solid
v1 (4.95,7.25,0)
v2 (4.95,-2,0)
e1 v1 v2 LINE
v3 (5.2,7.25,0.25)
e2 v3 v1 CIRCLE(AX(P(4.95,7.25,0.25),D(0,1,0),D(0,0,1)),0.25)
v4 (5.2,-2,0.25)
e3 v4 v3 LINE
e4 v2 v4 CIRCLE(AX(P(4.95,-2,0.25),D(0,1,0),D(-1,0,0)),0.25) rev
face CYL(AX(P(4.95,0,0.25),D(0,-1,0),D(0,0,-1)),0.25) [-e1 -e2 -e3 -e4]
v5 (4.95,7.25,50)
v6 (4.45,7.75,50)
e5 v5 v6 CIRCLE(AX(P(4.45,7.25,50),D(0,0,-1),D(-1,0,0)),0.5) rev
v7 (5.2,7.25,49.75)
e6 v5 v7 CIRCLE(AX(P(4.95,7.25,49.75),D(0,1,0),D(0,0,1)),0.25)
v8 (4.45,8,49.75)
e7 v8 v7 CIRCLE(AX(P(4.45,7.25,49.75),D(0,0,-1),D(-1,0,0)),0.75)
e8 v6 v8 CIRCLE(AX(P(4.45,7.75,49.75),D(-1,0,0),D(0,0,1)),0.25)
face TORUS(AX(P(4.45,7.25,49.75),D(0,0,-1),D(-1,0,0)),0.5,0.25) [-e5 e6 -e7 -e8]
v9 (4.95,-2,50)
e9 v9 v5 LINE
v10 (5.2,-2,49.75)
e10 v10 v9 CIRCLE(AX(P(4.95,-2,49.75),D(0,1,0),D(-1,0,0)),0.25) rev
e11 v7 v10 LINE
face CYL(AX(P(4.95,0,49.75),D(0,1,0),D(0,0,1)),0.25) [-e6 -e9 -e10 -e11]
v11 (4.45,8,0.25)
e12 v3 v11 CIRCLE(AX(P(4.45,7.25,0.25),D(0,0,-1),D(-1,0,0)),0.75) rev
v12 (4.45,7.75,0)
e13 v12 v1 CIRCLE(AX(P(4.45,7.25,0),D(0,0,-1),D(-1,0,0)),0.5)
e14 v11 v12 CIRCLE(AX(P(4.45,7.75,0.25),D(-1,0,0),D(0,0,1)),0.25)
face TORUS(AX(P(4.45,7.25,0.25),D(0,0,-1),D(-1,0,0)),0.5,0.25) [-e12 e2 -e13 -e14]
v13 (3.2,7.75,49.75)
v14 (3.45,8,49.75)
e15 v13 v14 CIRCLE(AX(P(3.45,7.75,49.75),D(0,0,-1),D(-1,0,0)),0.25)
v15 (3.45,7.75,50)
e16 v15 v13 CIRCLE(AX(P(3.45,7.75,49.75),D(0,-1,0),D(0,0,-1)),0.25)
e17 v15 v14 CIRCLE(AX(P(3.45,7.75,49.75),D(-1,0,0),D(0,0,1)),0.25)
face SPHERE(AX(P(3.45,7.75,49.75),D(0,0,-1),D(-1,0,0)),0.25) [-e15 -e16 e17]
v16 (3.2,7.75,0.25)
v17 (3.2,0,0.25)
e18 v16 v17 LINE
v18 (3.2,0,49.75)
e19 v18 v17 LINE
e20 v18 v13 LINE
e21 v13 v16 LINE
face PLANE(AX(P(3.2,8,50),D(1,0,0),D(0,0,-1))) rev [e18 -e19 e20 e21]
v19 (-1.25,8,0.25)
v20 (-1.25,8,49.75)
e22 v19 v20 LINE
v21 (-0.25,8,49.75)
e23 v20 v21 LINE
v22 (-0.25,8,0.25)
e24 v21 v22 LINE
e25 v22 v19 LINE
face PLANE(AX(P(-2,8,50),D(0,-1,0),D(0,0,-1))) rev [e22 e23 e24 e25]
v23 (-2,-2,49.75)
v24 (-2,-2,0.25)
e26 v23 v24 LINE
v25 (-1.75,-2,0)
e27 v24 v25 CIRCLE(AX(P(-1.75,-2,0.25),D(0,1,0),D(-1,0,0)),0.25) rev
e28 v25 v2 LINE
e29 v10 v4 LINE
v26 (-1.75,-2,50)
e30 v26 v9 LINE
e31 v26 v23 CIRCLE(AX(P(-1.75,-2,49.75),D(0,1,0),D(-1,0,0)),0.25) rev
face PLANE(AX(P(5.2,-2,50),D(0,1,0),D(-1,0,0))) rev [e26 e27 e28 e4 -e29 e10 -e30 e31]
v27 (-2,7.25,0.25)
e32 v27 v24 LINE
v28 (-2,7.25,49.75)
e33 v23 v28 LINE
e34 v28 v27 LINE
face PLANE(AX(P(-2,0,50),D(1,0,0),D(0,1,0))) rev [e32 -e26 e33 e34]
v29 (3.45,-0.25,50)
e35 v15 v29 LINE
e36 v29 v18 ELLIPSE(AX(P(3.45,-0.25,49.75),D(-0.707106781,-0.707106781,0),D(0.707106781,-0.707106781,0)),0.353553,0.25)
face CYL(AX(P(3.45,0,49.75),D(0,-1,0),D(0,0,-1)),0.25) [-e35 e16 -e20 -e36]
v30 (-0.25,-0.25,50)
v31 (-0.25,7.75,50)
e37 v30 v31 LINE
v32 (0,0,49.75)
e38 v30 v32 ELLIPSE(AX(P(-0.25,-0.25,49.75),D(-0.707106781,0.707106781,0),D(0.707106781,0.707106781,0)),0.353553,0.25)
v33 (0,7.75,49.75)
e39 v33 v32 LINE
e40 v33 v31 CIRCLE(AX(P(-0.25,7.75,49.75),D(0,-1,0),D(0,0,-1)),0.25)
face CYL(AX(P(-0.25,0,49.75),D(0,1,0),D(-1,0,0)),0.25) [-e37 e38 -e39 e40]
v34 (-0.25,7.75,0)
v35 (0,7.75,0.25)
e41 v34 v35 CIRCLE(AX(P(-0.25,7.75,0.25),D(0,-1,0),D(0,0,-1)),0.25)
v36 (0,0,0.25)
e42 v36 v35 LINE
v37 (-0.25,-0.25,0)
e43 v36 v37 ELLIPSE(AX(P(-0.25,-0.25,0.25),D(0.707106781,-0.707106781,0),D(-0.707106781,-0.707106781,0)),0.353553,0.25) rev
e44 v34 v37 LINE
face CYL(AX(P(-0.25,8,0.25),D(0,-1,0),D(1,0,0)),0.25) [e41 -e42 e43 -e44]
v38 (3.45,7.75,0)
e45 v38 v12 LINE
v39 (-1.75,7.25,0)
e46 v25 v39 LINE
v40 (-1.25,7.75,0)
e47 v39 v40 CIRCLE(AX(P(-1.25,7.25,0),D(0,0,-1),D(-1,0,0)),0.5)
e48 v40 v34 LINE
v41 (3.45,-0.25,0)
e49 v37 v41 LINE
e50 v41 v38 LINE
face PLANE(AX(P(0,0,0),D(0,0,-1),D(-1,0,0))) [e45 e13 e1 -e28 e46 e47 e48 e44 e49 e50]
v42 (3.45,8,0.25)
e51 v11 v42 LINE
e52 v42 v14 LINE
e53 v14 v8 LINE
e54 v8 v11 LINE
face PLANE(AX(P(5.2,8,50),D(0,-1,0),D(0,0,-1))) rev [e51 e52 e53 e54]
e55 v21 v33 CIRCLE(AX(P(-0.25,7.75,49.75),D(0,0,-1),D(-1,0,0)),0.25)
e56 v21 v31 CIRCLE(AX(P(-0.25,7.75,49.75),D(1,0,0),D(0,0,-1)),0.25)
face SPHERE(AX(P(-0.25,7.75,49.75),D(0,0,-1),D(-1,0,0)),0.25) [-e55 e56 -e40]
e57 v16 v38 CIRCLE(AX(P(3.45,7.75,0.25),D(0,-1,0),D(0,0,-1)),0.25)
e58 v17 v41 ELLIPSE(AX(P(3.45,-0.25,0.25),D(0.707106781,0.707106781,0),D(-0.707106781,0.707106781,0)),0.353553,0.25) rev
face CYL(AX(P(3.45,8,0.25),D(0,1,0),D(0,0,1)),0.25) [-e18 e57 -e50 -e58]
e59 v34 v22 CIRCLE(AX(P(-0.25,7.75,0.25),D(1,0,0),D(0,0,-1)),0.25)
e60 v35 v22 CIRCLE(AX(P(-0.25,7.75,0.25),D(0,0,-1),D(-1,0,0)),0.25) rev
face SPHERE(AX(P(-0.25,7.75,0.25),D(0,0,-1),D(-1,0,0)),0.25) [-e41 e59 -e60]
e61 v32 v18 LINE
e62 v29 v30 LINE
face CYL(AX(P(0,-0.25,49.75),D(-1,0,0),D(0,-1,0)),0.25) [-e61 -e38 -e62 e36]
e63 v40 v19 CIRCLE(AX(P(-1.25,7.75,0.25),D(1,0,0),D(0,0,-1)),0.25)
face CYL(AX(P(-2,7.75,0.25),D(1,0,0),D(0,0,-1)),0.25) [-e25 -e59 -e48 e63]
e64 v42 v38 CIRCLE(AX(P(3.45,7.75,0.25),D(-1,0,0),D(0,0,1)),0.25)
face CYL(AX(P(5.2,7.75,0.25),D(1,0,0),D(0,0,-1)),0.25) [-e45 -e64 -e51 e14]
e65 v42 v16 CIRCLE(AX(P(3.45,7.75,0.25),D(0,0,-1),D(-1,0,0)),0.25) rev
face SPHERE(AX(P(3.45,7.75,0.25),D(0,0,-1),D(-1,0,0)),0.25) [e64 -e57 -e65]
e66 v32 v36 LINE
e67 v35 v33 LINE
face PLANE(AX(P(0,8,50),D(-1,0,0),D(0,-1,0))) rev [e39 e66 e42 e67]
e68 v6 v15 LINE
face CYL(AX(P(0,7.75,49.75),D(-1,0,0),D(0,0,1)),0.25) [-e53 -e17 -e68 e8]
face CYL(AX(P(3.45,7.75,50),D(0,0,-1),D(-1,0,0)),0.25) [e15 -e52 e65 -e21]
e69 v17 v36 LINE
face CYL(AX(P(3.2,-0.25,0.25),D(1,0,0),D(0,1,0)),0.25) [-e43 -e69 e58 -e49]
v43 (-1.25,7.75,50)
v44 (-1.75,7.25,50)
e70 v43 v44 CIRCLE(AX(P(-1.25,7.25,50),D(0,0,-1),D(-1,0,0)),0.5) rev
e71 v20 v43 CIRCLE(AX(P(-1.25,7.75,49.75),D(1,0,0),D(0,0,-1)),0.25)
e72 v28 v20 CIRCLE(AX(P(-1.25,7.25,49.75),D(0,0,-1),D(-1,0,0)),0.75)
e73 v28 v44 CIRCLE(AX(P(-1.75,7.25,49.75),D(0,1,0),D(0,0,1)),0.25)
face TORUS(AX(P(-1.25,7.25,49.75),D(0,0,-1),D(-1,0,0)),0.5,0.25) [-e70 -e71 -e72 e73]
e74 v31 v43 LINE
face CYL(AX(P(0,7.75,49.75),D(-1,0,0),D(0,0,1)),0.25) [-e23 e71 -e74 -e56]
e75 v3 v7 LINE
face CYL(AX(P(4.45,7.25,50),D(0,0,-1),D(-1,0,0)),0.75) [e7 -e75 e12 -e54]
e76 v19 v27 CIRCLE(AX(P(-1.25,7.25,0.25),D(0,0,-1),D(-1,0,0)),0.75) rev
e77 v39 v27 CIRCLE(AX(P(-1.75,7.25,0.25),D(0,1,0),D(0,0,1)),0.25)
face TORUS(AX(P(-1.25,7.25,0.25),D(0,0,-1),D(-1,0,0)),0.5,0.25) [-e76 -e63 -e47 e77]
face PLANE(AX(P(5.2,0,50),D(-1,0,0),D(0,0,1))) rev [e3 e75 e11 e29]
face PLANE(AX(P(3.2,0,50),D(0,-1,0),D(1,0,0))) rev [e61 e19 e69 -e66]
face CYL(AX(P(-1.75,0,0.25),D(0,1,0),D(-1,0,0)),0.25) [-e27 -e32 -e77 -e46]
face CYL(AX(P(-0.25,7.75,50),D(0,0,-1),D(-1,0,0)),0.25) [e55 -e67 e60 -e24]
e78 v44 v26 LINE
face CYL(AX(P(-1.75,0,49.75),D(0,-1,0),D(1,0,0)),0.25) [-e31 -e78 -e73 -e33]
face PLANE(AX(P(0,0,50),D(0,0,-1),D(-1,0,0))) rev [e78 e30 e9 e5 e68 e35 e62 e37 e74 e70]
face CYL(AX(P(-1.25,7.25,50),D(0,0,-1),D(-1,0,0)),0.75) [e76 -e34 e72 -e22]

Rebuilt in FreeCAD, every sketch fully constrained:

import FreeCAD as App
import Part
import Sketcher

V = App.Vector
Q = App.Units.Quantity


def edges_at(feature, points):
    """Names of the edges that pass closest to the given points."""
    edges = feature.Shape.Edges
    near = lambda p: min(range(len(edges)), key=lambda i: edges[i].distToShape(Part.Vertex(*p))[0])
    return sorted({f"Edge{near(p) + 1}" for p in points})

doc = App.newDocument("Part")
body = doc.addObject("PartDesign::Body", "Body")

# Sketch on XY plane
sketch1 = body.newObject("Sketcher::SketchObject", "Sketch")
sketch1.AttachmentSupport = (doc.getObject("XY_Plane"), [""])
sketch1.MapMode = "FlatFace"
sketch1.addGeometry([
    Part.LineSegment(V(3.2, 0, 0), V(0, 0, 0)),  # 0
    Part.LineSegment(V(0, 0, 0), V(0, 8, 0)),  # 1
    Part.LineSegment(V(0, 8, 0), V(-2, 8, 0)),  # 2
    Part.LineSegment(V(-2, 8, 0), V(-2, -2, 0)),  # 3
    Part.LineSegment(V(-2, -2, 0), V(5.2, -2, 0)),  # 4
    Part.LineSegment(V(5.2, -2, 0), V(5.2, 8, 0)),  # 5
    Part.LineSegment(V(5.2, 8, 0), V(3.2, 8, 0)),  # 6
    Part.LineSegment(V(3.2, 8, 0), V(3.2, 0, 0)),  # 7
], False)
sketch1.addConstraint([
    Sketcher.Constraint("Coincident", 0, 2, 1, 1),
    Sketcher.Constraint("Coincident", 1, 2, 2, 1),
    Sketcher.Constraint("Coincident", 2, 2, 3, 1),
    Sketcher.Constraint("Coincident", 3, 2, 4, 1),
    Sketcher.Constraint("Coincident", 4, 2, 5, 1),
    Sketcher.Constraint("Coincident", 5, 2, 6, 1),
    Sketcher.Constraint("Coincident", 6, 2, 7, 1),
    Sketcher.Constraint("Coincident", 7, 2, 0, 1),
    Sketcher.Constraint("Horizontal", 0),
    Sketcher.Constraint("Vertical", 1),
    Sketcher.Constraint("Horizontal", 2),
    Sketcher.Constraint("Vertical", 3),
    Sketcher.Constraint("Horizontal", 4),
    Sketcher.Constraint("Vertical", 5),
    Sketcher.Constraint("Horizontal", 6),
    Sketcher.Constraint("Vertical", 7),
    Sketcher.Constraint("Coincident", 0, 2, -1, 1),
    Sketcher.Constraint("Horizontal", 2, 2, 5, 2),
    Sketcher.Constraint("Equal", 2, 6),
    Sketcher.Constraint("DistanceX", 2, 2, 2, 1, Q("2 mm")),
    Sketcher.Constraint("DistanceY", 1, 1, 1, 2, Q("8 mm")),
    Sketcher.Constraint("DistanceY", 3, 2, 3, 1, Q("10 mm")),
    Sketcher.Constraint("DistanceX", 0, 2, 0, 1, Q("3.2 mm")),
])
pad1 = body.newObject("PartDesign::Pad", "Pad")
pad1.Profile = sketch1
pad1.Length = 50
doc.recompute()

fillet = body.newObject("PartDesign::Fillet", "Fillet")
fillet.Base = (pad1, edges_at(pad1, [(5.2, 8, 25), (-2, 8, 25)]))
fillet.Radius = 0.75
doc.recompute()

fillet2 = body.newObject("PartDesign::Fillet", "Fillet001")
fillet2.Base = (fillet, edges_at(fillet, [(3.2, 8, 25), (0, 8, 25)]))
fillet2.Radius = 0.25
doc.recompute()

fillet3 = body.newObject("PartDesign::Fillet", "Fillet002")
fillet3.Base = (fillet2, edges_at(fillet2, [
    (1.6, 0, 0),
    (5.2, 2.625, 0),
    (0, 3.875, 0),
    (5.2, 2.625, 50),
    (-2, 2.625, 0),
    (-2, 2.625, 50),
    (3.95, 8, 0),
    (4.98, 7.78, 0),
    (-1.78, 7.78, 0),
    (3.95, 8, 50),
    (4.98, 7.78, 50),
    (-1.78, 7.78, 50),
    (1.6, 0, 50),
    (-0.75, 8, 0),
    (-0.75, 8, 50),
    (3.2, 3.875, 0),
    (3.273, 7.927, 0),
    (-0.073, 7.927, 0),
    (3.2, 3.875, 50),
    (3.273, 7.927, 50),
    (-0.073, 7.927, 50),
    (0, 3.875, 50),
]))
fillet3.Radius = 0.25

doc.recompute()
